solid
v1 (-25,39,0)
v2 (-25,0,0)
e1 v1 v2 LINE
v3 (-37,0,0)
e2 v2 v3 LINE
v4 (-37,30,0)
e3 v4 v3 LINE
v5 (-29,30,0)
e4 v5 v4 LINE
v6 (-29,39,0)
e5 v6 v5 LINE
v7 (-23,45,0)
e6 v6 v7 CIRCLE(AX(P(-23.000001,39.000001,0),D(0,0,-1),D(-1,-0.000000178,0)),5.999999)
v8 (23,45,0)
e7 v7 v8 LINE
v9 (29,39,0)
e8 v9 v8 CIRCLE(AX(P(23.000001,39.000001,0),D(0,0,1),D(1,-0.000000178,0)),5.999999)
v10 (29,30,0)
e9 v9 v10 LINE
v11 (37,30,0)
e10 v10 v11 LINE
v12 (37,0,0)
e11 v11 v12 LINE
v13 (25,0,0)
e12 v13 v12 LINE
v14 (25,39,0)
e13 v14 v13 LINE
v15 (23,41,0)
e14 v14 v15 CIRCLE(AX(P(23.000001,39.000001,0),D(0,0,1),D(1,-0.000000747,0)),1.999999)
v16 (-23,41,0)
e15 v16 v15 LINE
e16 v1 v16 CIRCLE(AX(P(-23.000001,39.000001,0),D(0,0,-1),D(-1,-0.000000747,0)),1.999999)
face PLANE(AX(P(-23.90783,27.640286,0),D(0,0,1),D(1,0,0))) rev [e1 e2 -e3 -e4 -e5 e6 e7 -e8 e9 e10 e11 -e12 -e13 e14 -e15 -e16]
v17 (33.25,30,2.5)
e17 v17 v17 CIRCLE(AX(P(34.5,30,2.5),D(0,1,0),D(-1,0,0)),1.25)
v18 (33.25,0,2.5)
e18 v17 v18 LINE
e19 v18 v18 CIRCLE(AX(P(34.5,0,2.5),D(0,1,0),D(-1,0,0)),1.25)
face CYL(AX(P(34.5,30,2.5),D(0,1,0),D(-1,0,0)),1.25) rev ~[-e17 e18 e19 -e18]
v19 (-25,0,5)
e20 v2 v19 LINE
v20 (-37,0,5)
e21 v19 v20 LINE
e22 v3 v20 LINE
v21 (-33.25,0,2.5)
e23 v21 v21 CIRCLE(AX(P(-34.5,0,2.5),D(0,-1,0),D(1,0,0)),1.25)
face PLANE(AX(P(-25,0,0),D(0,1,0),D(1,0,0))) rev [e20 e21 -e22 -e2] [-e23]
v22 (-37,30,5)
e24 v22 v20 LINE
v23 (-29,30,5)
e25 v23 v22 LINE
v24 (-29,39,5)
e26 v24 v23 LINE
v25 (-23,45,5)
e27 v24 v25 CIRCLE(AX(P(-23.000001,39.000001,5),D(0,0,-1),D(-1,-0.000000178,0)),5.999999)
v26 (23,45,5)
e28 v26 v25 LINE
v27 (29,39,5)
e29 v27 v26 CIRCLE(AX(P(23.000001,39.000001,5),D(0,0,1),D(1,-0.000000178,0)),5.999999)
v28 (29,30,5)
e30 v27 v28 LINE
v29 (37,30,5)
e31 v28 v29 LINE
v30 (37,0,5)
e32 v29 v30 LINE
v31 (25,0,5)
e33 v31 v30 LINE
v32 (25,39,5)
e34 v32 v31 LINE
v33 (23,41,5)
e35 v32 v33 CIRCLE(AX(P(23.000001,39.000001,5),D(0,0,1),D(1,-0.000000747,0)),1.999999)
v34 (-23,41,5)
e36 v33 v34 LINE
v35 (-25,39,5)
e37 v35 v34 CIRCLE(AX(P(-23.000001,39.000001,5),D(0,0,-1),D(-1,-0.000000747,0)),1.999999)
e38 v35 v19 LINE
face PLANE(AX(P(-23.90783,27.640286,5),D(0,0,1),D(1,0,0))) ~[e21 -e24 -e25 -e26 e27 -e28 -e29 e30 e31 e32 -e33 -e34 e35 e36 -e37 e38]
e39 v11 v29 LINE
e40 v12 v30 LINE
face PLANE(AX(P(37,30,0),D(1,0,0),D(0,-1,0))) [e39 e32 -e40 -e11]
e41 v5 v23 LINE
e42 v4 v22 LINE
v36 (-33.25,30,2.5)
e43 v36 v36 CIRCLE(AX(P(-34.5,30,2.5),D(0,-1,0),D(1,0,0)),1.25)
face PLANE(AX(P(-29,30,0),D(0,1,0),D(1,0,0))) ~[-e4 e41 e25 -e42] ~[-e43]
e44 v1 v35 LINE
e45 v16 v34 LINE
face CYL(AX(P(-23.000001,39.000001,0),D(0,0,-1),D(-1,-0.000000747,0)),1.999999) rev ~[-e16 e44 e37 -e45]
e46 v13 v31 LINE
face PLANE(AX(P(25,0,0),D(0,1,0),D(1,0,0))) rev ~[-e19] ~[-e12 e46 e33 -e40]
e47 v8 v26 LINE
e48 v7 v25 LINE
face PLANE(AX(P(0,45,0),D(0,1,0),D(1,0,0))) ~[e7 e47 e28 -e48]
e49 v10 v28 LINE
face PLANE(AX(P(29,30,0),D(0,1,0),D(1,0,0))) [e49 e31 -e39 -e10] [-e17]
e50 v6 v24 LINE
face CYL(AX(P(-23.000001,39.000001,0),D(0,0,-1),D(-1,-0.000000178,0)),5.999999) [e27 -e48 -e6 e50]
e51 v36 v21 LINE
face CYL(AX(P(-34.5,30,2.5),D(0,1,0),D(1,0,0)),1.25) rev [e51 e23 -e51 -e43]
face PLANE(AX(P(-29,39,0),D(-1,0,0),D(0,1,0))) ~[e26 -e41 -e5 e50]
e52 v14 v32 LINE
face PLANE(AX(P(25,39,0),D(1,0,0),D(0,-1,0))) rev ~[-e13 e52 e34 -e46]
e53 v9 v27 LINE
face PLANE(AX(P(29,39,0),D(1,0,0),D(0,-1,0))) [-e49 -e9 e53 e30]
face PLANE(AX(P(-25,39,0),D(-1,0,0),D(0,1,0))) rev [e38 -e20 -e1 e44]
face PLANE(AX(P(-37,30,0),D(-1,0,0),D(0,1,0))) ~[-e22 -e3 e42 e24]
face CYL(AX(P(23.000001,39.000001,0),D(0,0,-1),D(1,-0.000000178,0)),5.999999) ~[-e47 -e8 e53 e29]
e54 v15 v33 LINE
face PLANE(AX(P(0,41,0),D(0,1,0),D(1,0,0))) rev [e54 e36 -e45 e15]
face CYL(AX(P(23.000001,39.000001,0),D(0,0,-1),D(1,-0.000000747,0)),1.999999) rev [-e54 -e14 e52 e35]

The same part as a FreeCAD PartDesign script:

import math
import FreeCAD as App
import Part
import Sketcher
from FreeCAD import Vector

doc = App.newDocument("Part")
body = doc.addObject("PartDesign::Body", "Body")

sketch1 = body.newObject("Sketcher::SketchObject", "Sketch")
sketch1.AttachmentSupport = (doc.getObject("XY_Plane"), [""])
sketch1.MapMode = "FlatFace"
sketch1.addGeometry(Part.LineSegment(Vector(0, 41, 0), Vector(23, 41, 0)), False)
sketch1.addGeometry(Part.ArcOfCircle(Part.Circle(Vector(23, 39, 0), Vector(0, 0, 1), 2), math.radians(0), math.radians(90)), False)
sketch1.addGeometry(Part.LineSegment(Vector(25, 39, 0), Vector(25, 0, 0)), False)
sketch1.addGeometry(Part.LineSegment(Vector(25, 0, 0), Vector(37, 0, 0)), False)
sketch1.addGeometry(Part.LineSegment(Vector(37, 0, 0), Vector(37, 30, 0)), False)
sketch1.addGeometry(Part.LineSegment(Vector(37, 30, 0), Vector(29, 30, 0)), False)
sketch1.addGeometry(Part.LineSegment(Vector(29, 30, 0), Vector(29, 39, 0)), False)
sketch1.addGeometry(Part.ArcOfCircle(Part.Circle(Vector(23, 39, 0), Vector(0, 0, 1), 6), math.radians(0), math.radians(90)), False)
sketch1.addGeometry(Part.LineSegment(Vector(23, 45, 0), Vector(0, 45, 0)), False)
sketch1.addGeometry(Part.LineSegment(Vector(0, 45, 0), Vector(0, 41, 0)), False)
sketch1.addConstraint(Sketcher.Constraint("Tangent", 0, 2, 1, 2))
sketch1.addConstraint(Sketcher.Constraint("Tangent", 1, 1, 2, 1))
sketch1.addConstraint(Sketcher.Constraint("Coincident", 2, 2, 3, 1))
sketch1.addConstraint(Sketcher.Constraint("Coincident", 3, 2, 4, 1))
sketch1.addConstraint(Sketcher.Constraint("Coincident", 4, 2, 5, 1))
sketch1.addConstraint(Sketcher.Constraint("Coincident", 5, 2, 6, 1))
sketch1.addConstraint(Sketcher.Constraint("Tangent", 6, 2, 7, 1))
sketch1.addConstraint(Sketcher.Constraint("Tangent", 7, 2, 8, 1))
sketch1.addConstraint(Sketcher.Constraint("Coincident", 8, 2, 9, 1))
sketch1.addConstraint(Sketcher.Constraint("Coincident", 9, 2, 0, 1))
sketch1.addConstraint(Sketcher.Constraint("Horizontal", 0))
sketch1.addConstraint(Sketcher.Constraint("Vertical", 2))
sketch1.addConstraint(Sketcher.Constraint("Horizontal", 3))
sketch1.addConstraint(Sketcher.Constraint("Vertical", 4))
sketch1.addConstraint(Sketcher.Constraint("Horizontal", 5))
sketch1.addConstraint(Sketcher.Constraint("Vertical", 6))
sketch1.addConstraint(Sketcher.Constraint("Horizontal", 8))
sketch1.addConstraint(Sketcher.Constraint("Vertical", 9))
sketch1.addConstraint(Sketcher.Constraint("Coincident", 7, 3, 1, 3))
sketch1.addConstraint(Sketcher.Constraint("PointOnObject", 2, 2, -1))
sketch1.addConstraint(Sketcher.Constraint("PointOnObject", 8, 2, -2))
sketch1.addConstraint(Sketcher.Constraint("Radius", 1, 1.999999))
sketch1.addConstraint(Sketcher.Constraint("Radius", 7, 5.999999))
sketch1.addConstraint(Sketcher.Constraint("DistanceX", 0, 1, 0, 2, 23.0))
sketch1.addConstraint(Sketcher.Constraint("DistanceX", 3, 1, 3, 2, 12.0))
sketch1.addConstraint(Sketcher.Constraint("DistanceY", 2, 2, 2, 1, 39.0))
sketch1.addConstraint(Sketcher.Constraint("DistanceY", 4, 1, 4, 2, 30.0))
pad1 = body.newObject("PartDesign::Pad", "Pad")
pad1.Profile = sketch1
pad1.Length = 5

sketch2 = body.newObject("Sketcher::SketchObject", "Sketch001")
sketch2.AttachmentSupport = (doc.getObject("XZ_Plane"), [""])
sketch2.MapMode = "FlatFace"
sketch2.AttachmentOffset = App.Placement(Vector(0, 0, -30), App.Rotation())
sketch2.addGeometry(Part.Circle(Vector(34.5, 2.5, 0), Vector(0, 0, 1), 1.2), False)
sketch2.addConstraint(Sketcher.Constraint("Diameter", 0, 2.5))
sketch2.addConstraint(Sketcher.Constraint("DistanceX", -1, 1, 0, 3, 34.5))
sketch2.addConstraint(Sketcher.Constraint("DistanceY", -1, 1, 0, 3, 2.5))
pocket1 = body.newObject("PartDesign::Pocket", "Pocket")
pocket1.Profile = sketch2
pocket1.Type = "ThroughAll"
pocket1.Reversed = True
body2 = doc.addObject("PartDesign::Body", "Body001")
doc.recompute()

body2.BaseFeature = body
doc.recompute()

mirroring = doc.addObject("Part::Mirroring", "Mirroring")
mirroring.Source = body
mirroring.Base = Vector(0, 0, 0)
mirroring.Normal = Vector(1, 0, 0)
body3 = doc.addObject("PartDesign::Body", "Body002")
body3.BaseFeature = mirroring
boolean = body2.newObject("PartDesign::Boolean", "Boolean")
boolean.Type = "Fuse"
boolean.addObjects([body3])
doc.recompute()
mirroring.Visibility = False

doc.recompute()
